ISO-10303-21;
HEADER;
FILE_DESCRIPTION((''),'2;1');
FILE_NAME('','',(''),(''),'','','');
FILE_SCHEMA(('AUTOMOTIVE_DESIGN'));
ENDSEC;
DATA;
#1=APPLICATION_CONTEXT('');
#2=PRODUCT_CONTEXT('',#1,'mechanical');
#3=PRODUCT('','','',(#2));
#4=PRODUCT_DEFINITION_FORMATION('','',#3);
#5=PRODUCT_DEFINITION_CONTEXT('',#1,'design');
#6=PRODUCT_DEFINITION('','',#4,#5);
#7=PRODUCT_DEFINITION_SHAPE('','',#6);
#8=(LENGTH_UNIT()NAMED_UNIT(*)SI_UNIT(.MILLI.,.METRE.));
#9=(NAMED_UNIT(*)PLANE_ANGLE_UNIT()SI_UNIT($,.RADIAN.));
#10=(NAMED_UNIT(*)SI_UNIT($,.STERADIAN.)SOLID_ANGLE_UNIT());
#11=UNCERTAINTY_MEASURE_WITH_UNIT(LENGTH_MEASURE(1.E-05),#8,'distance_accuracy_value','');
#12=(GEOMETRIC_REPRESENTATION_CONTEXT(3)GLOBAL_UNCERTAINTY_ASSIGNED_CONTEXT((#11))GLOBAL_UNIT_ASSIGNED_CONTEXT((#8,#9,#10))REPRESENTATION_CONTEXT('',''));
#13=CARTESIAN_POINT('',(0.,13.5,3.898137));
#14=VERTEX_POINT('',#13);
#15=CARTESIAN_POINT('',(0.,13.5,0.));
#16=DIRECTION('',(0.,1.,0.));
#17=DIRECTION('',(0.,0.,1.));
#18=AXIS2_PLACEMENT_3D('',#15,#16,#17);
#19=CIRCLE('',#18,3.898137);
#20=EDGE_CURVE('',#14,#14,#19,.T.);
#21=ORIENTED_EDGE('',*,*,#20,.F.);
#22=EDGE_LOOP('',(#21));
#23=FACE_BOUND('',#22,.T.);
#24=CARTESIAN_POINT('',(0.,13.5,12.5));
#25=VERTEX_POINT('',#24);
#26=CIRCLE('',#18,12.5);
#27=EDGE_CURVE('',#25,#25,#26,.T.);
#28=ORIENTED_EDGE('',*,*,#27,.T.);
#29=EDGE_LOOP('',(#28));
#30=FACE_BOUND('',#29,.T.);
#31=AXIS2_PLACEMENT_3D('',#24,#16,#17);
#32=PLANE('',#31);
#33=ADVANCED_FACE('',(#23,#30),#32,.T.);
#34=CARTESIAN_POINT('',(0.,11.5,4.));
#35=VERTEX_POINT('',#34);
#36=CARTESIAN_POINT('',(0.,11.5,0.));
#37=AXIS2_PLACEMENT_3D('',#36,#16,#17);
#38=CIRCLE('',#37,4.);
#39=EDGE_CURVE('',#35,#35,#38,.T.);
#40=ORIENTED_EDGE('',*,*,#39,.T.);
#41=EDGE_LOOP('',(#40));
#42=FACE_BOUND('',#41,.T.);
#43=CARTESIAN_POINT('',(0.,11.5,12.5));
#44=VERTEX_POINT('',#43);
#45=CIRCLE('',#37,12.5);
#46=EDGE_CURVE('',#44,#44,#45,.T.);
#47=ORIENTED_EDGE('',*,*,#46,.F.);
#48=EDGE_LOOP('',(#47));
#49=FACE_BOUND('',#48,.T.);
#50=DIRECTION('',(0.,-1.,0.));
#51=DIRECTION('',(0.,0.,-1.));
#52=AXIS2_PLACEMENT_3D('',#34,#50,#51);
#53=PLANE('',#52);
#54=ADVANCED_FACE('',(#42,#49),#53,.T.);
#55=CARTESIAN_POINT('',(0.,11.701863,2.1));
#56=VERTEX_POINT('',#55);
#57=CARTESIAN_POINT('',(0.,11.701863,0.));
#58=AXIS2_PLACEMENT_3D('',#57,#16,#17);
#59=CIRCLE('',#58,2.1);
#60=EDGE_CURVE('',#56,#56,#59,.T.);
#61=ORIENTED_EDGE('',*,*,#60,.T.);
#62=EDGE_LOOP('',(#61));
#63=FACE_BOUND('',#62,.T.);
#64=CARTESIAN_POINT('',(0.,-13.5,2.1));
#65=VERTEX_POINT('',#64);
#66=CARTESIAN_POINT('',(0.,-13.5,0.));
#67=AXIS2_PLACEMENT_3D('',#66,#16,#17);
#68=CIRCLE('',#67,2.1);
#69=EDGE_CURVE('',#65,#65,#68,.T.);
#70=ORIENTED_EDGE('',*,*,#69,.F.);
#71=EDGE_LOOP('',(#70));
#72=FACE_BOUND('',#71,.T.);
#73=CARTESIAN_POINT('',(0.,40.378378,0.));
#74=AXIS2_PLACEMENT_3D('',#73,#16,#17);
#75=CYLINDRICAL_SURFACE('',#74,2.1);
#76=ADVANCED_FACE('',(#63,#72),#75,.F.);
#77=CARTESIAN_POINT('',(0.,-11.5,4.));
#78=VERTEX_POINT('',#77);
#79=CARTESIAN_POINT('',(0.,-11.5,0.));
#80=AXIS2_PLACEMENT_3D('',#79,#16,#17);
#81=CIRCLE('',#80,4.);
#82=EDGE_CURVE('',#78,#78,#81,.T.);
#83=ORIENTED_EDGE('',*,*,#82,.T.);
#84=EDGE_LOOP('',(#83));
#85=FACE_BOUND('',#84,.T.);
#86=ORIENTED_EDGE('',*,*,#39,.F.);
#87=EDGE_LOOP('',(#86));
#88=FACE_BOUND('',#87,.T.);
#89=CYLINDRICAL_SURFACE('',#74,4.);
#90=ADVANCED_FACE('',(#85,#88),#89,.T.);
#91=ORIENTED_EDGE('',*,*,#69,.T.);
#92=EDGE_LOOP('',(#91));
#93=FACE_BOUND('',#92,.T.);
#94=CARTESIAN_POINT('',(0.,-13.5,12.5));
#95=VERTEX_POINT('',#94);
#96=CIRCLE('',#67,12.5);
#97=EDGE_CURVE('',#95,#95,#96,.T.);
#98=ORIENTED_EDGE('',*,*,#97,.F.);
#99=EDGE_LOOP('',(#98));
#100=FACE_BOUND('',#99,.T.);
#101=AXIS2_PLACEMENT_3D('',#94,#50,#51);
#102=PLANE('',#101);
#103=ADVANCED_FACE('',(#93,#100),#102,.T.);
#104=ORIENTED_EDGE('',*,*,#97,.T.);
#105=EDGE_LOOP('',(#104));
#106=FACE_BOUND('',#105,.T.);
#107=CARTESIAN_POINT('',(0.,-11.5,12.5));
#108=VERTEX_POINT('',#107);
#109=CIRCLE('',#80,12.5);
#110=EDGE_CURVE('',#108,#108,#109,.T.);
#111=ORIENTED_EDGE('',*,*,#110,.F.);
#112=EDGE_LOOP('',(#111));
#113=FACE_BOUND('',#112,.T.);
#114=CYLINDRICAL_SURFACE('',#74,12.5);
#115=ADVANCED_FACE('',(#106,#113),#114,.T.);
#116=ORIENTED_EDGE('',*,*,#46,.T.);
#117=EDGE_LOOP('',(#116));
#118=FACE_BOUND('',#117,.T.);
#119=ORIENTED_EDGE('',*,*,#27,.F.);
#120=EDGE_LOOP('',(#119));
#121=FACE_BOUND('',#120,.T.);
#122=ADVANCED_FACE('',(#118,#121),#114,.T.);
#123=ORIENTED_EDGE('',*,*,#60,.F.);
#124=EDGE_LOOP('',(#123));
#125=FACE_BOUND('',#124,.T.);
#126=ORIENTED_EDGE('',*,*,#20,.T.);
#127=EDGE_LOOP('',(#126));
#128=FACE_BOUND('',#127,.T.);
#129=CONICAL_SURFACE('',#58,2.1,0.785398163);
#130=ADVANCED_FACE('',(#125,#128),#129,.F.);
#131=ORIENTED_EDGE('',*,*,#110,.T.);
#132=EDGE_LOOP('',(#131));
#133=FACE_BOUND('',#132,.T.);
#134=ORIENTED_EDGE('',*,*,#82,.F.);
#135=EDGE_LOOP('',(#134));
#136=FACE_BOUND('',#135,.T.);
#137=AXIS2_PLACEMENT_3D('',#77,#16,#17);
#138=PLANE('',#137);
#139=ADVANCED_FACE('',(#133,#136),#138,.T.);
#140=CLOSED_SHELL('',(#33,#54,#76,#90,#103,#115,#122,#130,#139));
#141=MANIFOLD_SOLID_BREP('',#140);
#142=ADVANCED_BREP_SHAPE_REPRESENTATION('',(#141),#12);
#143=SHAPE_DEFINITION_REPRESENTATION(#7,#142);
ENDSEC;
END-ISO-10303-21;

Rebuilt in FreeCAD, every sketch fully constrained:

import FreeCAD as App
import Part
import Sketcher
from FreeCAD import Vector
Q = App.Units.Quantity


def add_polygon(sketch, points):
    """Adds a closed chain of lines whose ends are joined by coincident constraints."""
    first, n = sketch.GeometryCount, len(points)
    for a, b in zip(points, points[1:] + points[:1]):
        sketch.addGeometry(Part.LineSegment(App.Vector(*a, 0), App.Vector(*b, 0)), False)
    for i in range(n):
        sketch.addConstraint(Sketcher.Constraint("Coincident", first + i, 2, first + (i + 1) % n, 1))

doc = App.newDocument("Part")
body = doc.addObject("PartDesign::Body", "Body")

# Sketch on YZ plane
sketch1 = doc.addObject("Sketcher::SketchObject", "Sketch")
body.addObject(sketch1)
sketch1.AttachmentSupport = (doc.YZ_Plane, [""])
sketch1.MapMode = "FlatFace"
add_polygon(sketch1, [(11.5, 4), (-11.5, 4), (-11.5, 12.5), (-13.5, 12.5), (-13.5, 2.1), (11.701863, 2.1), (13.5, 3.898137), (13.5, 12.5), (11.5, 12.5)])  # lines 0-8
sketch1.addConstraint([
    Sketcher.Constraint("Horizontal", 0),
    Sketcher.Constraint("Vertical", 1),
    Sketcher.Constraint("Horizontal", 2),
    Sketcher.Constraint("Vertical", 3),
    Sketcher.Constraint("Horizontal", 4),
    Sketcher.Constraint("Vertical", 6),
    Sketcher.Constraint("Horizontal", 7),
    Sketcher.Constraint("Vertical", 8),
    Sketcher.Constraint("Symmetric", 2, 2, 6, 2, -2),
    Sketcher.Constraint("Equal", 2, 7),
    Sketcher.Constraint("DistanceX", 0, 2, 0, 1, Q("23 mm")),
    Sketcher.Constraint("DistanceX", 2, 2, 2, 1, Q("2 mm")),
    Sketcher.Constraint("Angle", 5, Q("45 deg")),
    Sketcher.Constraint("DistanceY", 1, 1, 1, 2, Q("8.5 mm")),
    Sketcher.Constraint("DistanceY", 3, 2, 3, 1, Q("10.4 mm")),
    Sketcher.Constraint("DistanceY", -1, 1, 0, 2, Q("4 mm")),
    Sketcher.Constraint("Distance", 5, Q("2.542949 mm")),
])
revolution = doc.addObject("PartDesign::Revolution", "Revolution")
body.addObject(revolution)
revolution.Profile = sketch1
revolution.ReferenceAxis = (sketch1, ["H_Axis"])
revolution.Angle = 360

doc.recompute()
